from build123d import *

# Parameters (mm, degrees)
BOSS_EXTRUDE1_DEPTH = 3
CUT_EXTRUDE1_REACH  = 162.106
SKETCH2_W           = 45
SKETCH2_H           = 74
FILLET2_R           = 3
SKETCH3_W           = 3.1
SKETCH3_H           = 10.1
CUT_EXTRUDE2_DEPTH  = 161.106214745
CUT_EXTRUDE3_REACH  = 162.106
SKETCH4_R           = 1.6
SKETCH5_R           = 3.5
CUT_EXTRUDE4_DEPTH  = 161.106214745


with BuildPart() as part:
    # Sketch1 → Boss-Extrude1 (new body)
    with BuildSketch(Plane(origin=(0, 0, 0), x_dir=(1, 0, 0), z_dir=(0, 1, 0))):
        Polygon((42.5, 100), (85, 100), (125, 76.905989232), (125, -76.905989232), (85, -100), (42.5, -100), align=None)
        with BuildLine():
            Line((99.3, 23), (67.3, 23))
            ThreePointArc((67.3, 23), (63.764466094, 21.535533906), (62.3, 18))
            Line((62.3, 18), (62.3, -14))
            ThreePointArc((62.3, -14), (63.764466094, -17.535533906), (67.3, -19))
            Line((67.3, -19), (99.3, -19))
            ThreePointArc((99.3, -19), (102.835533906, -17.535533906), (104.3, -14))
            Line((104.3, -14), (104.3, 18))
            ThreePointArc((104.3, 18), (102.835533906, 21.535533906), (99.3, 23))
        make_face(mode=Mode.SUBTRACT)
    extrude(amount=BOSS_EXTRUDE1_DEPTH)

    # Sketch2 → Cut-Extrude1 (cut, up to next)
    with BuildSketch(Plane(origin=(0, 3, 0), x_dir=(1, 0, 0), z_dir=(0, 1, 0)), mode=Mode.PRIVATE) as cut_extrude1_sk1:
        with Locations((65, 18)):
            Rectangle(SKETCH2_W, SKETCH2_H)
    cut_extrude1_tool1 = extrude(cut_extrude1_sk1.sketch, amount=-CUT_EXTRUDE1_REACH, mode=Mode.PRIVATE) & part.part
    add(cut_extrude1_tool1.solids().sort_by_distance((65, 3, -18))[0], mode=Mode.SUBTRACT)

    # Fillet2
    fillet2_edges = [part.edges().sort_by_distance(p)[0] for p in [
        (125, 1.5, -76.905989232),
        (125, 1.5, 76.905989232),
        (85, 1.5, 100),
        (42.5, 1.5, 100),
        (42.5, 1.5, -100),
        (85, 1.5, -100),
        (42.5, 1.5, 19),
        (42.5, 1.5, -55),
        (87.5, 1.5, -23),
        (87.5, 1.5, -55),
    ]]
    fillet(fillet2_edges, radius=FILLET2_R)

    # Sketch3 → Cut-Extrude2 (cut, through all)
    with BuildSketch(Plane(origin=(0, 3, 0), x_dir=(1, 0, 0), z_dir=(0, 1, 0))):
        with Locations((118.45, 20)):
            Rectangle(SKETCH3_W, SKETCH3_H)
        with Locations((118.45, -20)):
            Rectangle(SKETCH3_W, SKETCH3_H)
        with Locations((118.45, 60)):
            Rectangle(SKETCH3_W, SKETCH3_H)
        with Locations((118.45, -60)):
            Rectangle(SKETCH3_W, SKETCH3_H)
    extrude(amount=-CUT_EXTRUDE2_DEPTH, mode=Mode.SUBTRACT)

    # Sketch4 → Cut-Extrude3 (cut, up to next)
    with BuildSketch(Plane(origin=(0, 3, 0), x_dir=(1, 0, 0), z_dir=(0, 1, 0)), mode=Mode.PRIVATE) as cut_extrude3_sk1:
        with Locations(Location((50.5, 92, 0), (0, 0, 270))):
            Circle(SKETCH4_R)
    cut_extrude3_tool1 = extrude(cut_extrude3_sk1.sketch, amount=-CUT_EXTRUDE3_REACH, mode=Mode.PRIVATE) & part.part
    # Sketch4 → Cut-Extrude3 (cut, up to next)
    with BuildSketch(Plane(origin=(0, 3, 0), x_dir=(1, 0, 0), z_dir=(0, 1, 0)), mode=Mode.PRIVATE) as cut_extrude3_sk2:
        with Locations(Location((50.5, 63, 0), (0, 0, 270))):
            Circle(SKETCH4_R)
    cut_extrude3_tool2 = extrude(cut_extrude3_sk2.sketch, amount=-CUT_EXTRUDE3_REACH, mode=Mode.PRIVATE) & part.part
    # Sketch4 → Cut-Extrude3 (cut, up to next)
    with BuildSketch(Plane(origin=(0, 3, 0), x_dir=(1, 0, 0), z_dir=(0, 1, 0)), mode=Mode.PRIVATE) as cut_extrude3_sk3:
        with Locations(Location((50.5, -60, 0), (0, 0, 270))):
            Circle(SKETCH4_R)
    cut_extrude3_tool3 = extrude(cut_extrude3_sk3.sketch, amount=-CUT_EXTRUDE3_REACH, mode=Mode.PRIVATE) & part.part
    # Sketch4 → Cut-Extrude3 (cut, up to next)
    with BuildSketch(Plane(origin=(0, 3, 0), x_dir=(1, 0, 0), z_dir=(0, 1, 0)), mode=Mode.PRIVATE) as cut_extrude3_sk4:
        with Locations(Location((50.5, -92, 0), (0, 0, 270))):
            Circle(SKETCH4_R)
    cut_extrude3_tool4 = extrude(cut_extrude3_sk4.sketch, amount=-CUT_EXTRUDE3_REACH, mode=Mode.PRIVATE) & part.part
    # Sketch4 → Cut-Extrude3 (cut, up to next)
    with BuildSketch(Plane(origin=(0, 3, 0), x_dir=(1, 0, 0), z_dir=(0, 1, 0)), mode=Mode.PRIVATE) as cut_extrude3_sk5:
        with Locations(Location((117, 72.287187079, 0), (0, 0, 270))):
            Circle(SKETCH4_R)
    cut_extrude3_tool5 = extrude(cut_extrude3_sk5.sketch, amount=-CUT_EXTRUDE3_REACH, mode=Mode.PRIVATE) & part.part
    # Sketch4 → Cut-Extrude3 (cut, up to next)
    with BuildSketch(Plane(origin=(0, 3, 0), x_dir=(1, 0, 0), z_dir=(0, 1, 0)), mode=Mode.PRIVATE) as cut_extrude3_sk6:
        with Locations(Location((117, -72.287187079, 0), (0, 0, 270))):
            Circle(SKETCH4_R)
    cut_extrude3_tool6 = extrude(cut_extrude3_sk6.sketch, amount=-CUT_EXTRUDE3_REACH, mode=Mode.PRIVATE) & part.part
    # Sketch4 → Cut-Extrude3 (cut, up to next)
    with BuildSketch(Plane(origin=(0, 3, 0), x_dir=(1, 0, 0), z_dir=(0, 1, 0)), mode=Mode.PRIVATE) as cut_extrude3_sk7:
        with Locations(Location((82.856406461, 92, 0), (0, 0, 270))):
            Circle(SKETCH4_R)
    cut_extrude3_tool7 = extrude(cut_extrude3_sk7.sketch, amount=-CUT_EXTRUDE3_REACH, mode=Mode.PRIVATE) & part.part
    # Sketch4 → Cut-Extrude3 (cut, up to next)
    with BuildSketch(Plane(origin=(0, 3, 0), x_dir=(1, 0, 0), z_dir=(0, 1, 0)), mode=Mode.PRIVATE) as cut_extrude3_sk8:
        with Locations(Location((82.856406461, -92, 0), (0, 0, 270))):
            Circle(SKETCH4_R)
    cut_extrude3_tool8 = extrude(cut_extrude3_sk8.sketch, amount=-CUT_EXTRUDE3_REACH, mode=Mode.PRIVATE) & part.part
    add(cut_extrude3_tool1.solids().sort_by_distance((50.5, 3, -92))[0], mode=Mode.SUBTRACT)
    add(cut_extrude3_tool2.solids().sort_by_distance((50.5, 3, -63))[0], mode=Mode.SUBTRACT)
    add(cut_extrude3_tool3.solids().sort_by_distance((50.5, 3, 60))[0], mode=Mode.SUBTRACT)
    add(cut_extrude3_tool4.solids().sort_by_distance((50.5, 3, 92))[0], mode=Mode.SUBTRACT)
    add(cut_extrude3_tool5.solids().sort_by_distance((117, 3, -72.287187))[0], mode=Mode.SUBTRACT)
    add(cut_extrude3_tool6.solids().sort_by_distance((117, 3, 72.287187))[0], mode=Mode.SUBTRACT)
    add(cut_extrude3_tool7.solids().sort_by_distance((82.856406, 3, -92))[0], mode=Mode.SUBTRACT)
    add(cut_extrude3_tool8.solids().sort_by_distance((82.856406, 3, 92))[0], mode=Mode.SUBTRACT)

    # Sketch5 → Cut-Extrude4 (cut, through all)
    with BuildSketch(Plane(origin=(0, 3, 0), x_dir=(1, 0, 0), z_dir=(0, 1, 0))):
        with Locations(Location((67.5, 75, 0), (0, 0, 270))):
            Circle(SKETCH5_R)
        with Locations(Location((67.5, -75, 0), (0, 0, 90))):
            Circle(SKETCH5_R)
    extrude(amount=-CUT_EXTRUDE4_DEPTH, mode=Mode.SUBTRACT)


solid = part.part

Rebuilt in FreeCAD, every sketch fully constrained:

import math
import FreeCAD as App
import Part
import Sketcher

V = App.Vector
Q = App.Units.Quantity


def edges_at(feature, points):
    """Names of the edges that pass closest to the given points."""
    edges = feature.Shape.Edges
    near = lambda p: min(range(len(edges)), key=lambda i: edges[i].distToShape(Part.Vertex(*p))[0])
    return sorted({f"Edge{near(p) + 1}" for p in points})

doc = App.newDocument("Part")
params = doc.addObject("Spreadsheet::Sheet", "Params")
for row, (alias, value) in enumerate([
    ("sketch1_radius", "5 mm"),
    ("sketch1_width", "32 mm"),
    ("sketch1_height", "200 mm"),
    ("sketch1_width2", "42.5 mm"),
    ("pad1_length", "3 mm"),
    ("sketch2_width", "45 mm"),
    ("sketch2_height", "74 mm"),
    ("pocket1_length", "3 mm"),
    ("fillet_radius", "3 mm"),
    ("sketch3_width", "3.1 mm"),
    ("sketch3_height", "10.1 mm"),
    ("sketch4_diameter", "3.2 mm"),
    ("sketch5_diameter", "3.2 mm"),
    ("sketch6_diameter", "3.2 mm"),
    ("sketch7_diameter", "3.2 mm"),
    ("sketch8_diameter", "3.2 mm"),
    ("sketch9_diameter", "3.2 mm"),
    ("sketch10_diameter", "3.2 mm"),
    ("sketch11_diameter", "3.2 mm"),
    ("sketch12_diameter", "7 mm"),
], start=1):
    params.set(f"A{row}", alias)
    params.set(f"B{row}", "=" + value)
    params.setAlias(f"B{row}", alias)

body = doc.addObject("PartDesign::Body", "Body")

# Sketch on XZ plane
sketch1 = body.newObject("Sketcher::SketchObject", "Sketch")
sketch1.AttachmentSupport = (doc.getObject("XZ_Plane"), [""])
sketch1.MapMode = "FlatFace"
sketch1.addGeometry([
    Part.LineSegment(V(85, -100, 0), V(42, -100, 0)),  # 0
    Part.LineSegment(V(42, -100, 0), V(42, 100, 0)),  # 1
    Part.LineSegment(V(42, 100, 0), V(85, 100, 0)),  # 2
    Part.LineSegment(V(85, 100, 0), V(125, 77, 0)),  # 3
    Part.LineSegment(V(125, 77, 0), V(125, -77, 0)),  # 4
    Part.LineSegment(V(125, -77, 0), V(85, -100, 0)),  # 5
    Part.ArcOfCircle(Part.Circle(V(99, -18, 0), V(0, 0, 1), 5), math.radians(-90), math.radians(0)),  # 6
    Part.LineSegment(V(104, -18, 0), V(104, 14, 0)),  # 7
    Part.ArcOfCircle(Part.Circle(V(99, 14, 0), V(0, 0, 1), 5), math.radians(0), math.radians(90)),  # 8
    Part.LineSegment(V(99, 19, 0), V(67, 19, 0)),  # 9
    Part.ArcOfCircle(Part.Circle(V(67, 14, 0), V(0, 0, 1), 5), math.radians(90), math.radians(180)),  # 10
    Part.LineSegment(V(62, 14, 0), V(62, -18, 0)),  # 11
    Part.ArcOfCircle(Part.Circle(V(67, -18, 0), V(0, 0, 1), 5), math.radians(180), math.radians(270)),  # 12
    Part.LineSegment(V(67, -23, 0), V(99, -23, 0)),  # 13
], False)
sketch1.addConstraint([
    Sketcher.Constraint("Coincident", 0, 2, 1, 1),
    Sketcher.Constraint("Coincident", 1, 2, 2, 1),
    Sketcher.Constraint("Coincident", 2, 2, 3, 1),
    Sketcher.Constraint("Coincident", 3, 2, 4, 1),
    Sketcher.Constraint("Coincident", 4, 2, 5, 1),
    Sketcher.Constraint("Coincident", 5, 2, 0, 1),
    Sketcher.Constraint("Tangent", 6, 2, 7, 1),
    Sketcher.Constraint("Tangent", 7, 2, 8, 1),
    Sketcher.Constraint("Tangent", 8, 2, 9, 1),
    Sketcher.Constraint("Tangent", 9, 2, 10, 1),
    Sketcher.Constraint("Tangent", 10, 2, 11, 1),
    Sketcher.Constraint("Tangent", 11, 2, 12, 1),
    Sketcher.Constraint("Tangent", 12, 2, 13, 1),
    Sketcher.Constraint("Tangent", 13, 2, 6, 1),
    Sketcher.Constraint("Horizontal", 0),
    Sketcher.Constraint("Vertical", 1),
    Sketcher.Constraint("Horizontal", 2),
    Sketcher.Constraint("Vertical", 4),
    Sketcher.Constraint("Vertical", 7),
    Sketcher.Constraint("Horizontal", 9),
    Sketcher.Constraint("Vertical", 11),
    Sketcher.Constraint("Horizontal", 13),
    Sketcher.Constraint("Equal", 6, 8),
    Sketcher.Constraint("Equal", 8, 10),
    Sketcher.Constraint("Equal", 10, 12),
    Sketcher.Constraint("Symmetric", 2, 2, 5, 2, -1),
    Sketcher.Constraint("Equal", 13, 7),
    Sketcher.Constraint("Equal", 3, 5),
    Sketcher.Constraint("Radius", 6, Q("5 mm")),
    Sketcher.Constraint("DistanceX", 9, 2, 9, 1, Q("32 mm")),
    Sketcher.Constraint("DistanceY", 1, 1, 1, 2, Q("200 mm")),
    Sketcher.Constraint("Angle", 3, Q("-30 deg")),
    Sketcher.Constraint("DistanceX", 0, 2, 0, 1, Q("42.5 mm")),
    Sketcher.Constraint("DistanceY", 6, 3, -1, 1, Q("18 mm")),
    Sketcher.Constraint("DistanceX", -1, 1, 2, 2, Q("85 mm")),
    Sketcher.Constraint("DistanceX", -1, 1, 3, 2, Q("125 mm")),
    Sketcher.Constraint("DistanceX", -1, 1, 6, 3, Q("99.3 mm")),
])
sketch1.setExpression("Constraints[28]", "Params.sketch1_radius")
sketch1.setExpression("Constraints[29]", "Params.sketch1_width")
sketch1.setExpression("Constraints[30]", "Params.sketch1_height")
sketch1.setExpression("Constraints[32]", "Params.sketch1_width2")
pad1 = body.newObject("PartDesign::Pad", "Pad")
pad1.Profile = sketch1
pad1.setExpression("Length", "Params.pad1_length")
pad1.Reversed = True

# Sketch on XZ plane
sketch2 = body.newObject("Sketcher::SketchObject", "Sketch001")
sketch2.AttachmentSupport = (doc.getObject("XZ_Plane"), [""])
sketch2.MapMode = "FlatFace"
sketch2.AttachmentOffset = App.Placement(V(0, 0, -3), App.Rotation())
sketch2.addGeometry([
    Part.LineSegment(V(42, -55, 0), V(42, 19, 0)),
    Part.LineSegment(V(42, 19, 0), V(88, 19, 0)),
    Part.LineSegment(V(88, 19, 0), V(88, -55, 0)),
    Part.LineSegment(V(88, -55, 0), V(42, -55, 0)),
], False)
sketch2.addConstraint([
    Sketcher.Constraint("Coincident", 0, 2, 1, 1),
    Sketcher.Constraint("Coincident", 1, 2, 2, 1),
    Sketcher.Constraint("Coincident", 2, 2, 3, 1),
    Sketcher.Constraint("Coincident", 3, 2, 0, 1),
    Sketcher.Constraint("Vertical", 0),
    Sketcher.Constraint("Horizontal", 1),
    Sketcher.Constraint("Vertical", 2),
    Sketcher.Constraint("Horizontal", 3),
    Sketcher.Constraint("DistanceX", 1, 1, 1, 2, Q("45 mm")),
    Sketcher.Constraint("DistanceY", 0, 1, 0, 2, Q("74 mm")),
    Sketcher.Constraint("DistanceY", -1, 1, 0, 2, Q("19 mm")),
    Sketcher.Constraint("DistanceX", -1, 1, 0, 2, Q("42.5 mm")),
])
sketch2.setExpression("Constraints[8]", "Params.sketch2_width")
sketch2.setExpression("Constraints[9]", "Params.sketch2_height")
pocket1 = body.newObject("PartDesign::Pocket", "Pocket")
pocket1.Profile = sketch2
pocket1.setExpression("Length", "Params.pocket1_length")
pocket1.Reversed = True
doc.recompute()

fillet = body.newObject("PartDesign::Fillet", "Fillet")
fillet.Base = (pocket1, edges_at(pocket1, [
    (125, 1.5, -76.906),
    (125, 1.5, 76.906),
    (85, 1.5, 100),
    (42.5, 1.5, 100),
    (42.5, 1.5, -100),
    (85, 1.5, -100),
    (42.5, 1.5, 19),
    (42.5, 1.5, -55),
    (87.5, 1.5, -23),
    (87.5, 1.5, -55),
]))
fillet.setExpression("Radius", "Params.fillet_radius")

# Sketch on XZ plane
sketch3 = body.newObject("Sketcher::SketchObject", "Sketch002")
sketch3.AttachmentSupport = (doc.getObject("XZ_Plane"), [""])
sketch3.MapMode = "FlatFace"
sketch3.AttachmentOffset = App.Placement(V(0, 0, -3), App.Rotation())
sketch3.addGeometry([
    Part.LineSegment(V(116.9, -25.1, 0), V(116.9, -14.9, 0)),  # 0
    Part.LineSegment(V(116.9, -14.9, 0), V(120, -14.9, 0)),  # 1
    Part.LineSegment(V(120, -14.9, 0), V(120, -25.1, 0)),  # 2
    Part.LineSegment(V(120, -25.1, 0), V(116.9, -25.1, 0)),  # 3
    Part.LineSegment(V(116.9, 14.9, 0), V(116.9, 25.1, 0)),  # 4
    Part.LineSegment(V(116.9, 25.1, 0), V(120, 25.1, 0)),  # 5
    Part.LineSegment(V(120, 25.1, 0), V(120, 14.9, 0)),  # 6
    Part.LineSegment(V(120, 14.9, 0), V(116.9, 14.9, 0)),  # 7
    Part.LineSegment(V(116.9, -65, 0), V(116.9, -55, 0)),  # 8
    Part.LineSegment(V(116.9, -55, 0), V(120, -55, 0)),  # 9
    Part.LineSegment(V(120, -55, 0), V(120, -65, 0)),  # 10
    Part.LineSegment(V(120, -65, 0), V(116.9, -65, 0)),  # 11
    Part.LineSegment(V(116.9, 55, 0), V(116.9, 65, 0)),  # 12
    Part.LineSegment(V(116.9, 65, 0), V(120, 65, 0)),  # 13
    Part.LineSegment(V(120, 65, 0), V(120, 55, 0)),  # 14
    Part.LineSegment(V(120, 55, 0), V(116.9, 55, 0)),  # 15
], False)
sketch3.addConstraint([
    Sketcher.Constraint("Coincident", 0, 2, 1, 1),
    Sketcher.Constraint("Coincident", 1, 2, 2, 1),
    Sketcher.Constraint("Coincident", 2, 2, 3, 1),
    Sketcher.Constraint("Coincident", 3, 2, 0, 1),
    Sketcher.Constraint("Coincident", 4, 2, 5, 1),
    Sketcher.Constraint("Coincident", 5, 2, 6, 1),
    Sketcher.Constraint("Coincident", 6, 2, 7, 1),
    Sketcher.Constraint("Coincident", 7, 2, 4, 1),
    Sketcher.Constraint("Coincident", 8, 2, 9, 1),
    Sketcher.Constraint("Coincident", 9, 2, 10, 1),
    Sketcher.Constraint("Coincident", 10, 2, 11, 1),
    Sketcher.Constraint("Coincident", 11, 2, 8, 1),
    Sketcher.Constraint("Coincident", 12, 2, 13, 1),
    Sketcher.Constraint("Coincident", 13, 2, 14, 1),
    Sketcher.Constraint("Coincident", 14, 2, 15, 1),
    Sketcher.Constraint("Coincident", 15, 2, 12, 1),
    Sketcher.Constraint("Vertical", 0),
    Sketcher.Constraint("Horizontal", 1),
    Sketcher.Constraint("Vertical", 2),
    Sketcher.Constraint("Horizontal", 3),
    Sketcher.Constraint("Vertical", 4),
    Sketcher.Constraint("Horizontal", 5),
    Sketcher.Constraint("Vertical", 6),
    Sketcher.Constraint("Horizontal", 7),
    Sketcher.Constraint("Vertical", 8),
    Sketcher.Constraint("Horizontal", 9),
    Sketcher.Constraint("Vertical", 10),
    Sketcher.Constraint("Horizontal", 11),
    Sketcher.Constraint("Vertical", 12),
    Sketcher.Constraint("Horizontal", 13),
    Sketcher.Constraint("Vertical", 14),
    Sketcher.Constraint("Horizontal", 15),
    Sketcher.Constraint("Symmetric", 3, 2, 4, 2, -1),
    Sketcher.Constraint("Symmetric", 1, 2, 6, 2, -1),
    Sketcher.Constraint("Symmetric", 11, 2, 12, 2, -1),
    Sketcher.Constraint("Symmetric", 9, 2, 14, 2, -1),
    Sketcher.Constraint("Vertical", 7, 2, 8, 2),
    Sketcher.Constraint("Vertical", 6, 2, 9, 2),
    Sketcher.Constraint("Equal", 6, 8),
    Sketcher.Constraint("DistanceX", 1, 1, 1, 2, Q("3.1 mm")),
    Sketcher.Constraint("DistanceY", 0, 1, 0, 2, Q("10.1 mm")),
    Sketcher.Constraint("DistanceX", -1, 1, 1, 2, Q("120 mm")),
    Sketcher.Constraint("DistanceY", 0, 2, 4, 2, Q("40 mm")),
    Sketcher.Constraint("DistanceY", 8, 2, 0, 2, Q("40 mm")),
])
sketch3.setExpression("Constraints[39]", "Params.sketch3_width")
sketch3.setExpression("Constraints[40]", "Params.sketch3_height")
pocket2 = body.newObject("PartDesign::Pocket", "Pocket001")
pocket2.Profile = sketch3
pocket2.Type = "ThroughAll"
pocket2.Reversed = True

# Sketch on XZ plane
sketch4 = body.newObject("Sketcher::SketchObject", "Sketch003")
sketch4.AttachmentSupport = (doc.getObject("XZ_Plane"), [""])
sketch4.MapMode = "FlatFace"
sketch4.AttachmentOffset = App.Placement(V(0, 0, -3), App.Rotation())
sketch4.addGeometry(Part.Circle(V(50.5, -92, 0), V(0, 0, 1), 1.6), False)
sketch4.addConstraint([
    Sketcher.Constraint("Diameter", 0, Q("3.2 mm")),
    Sketcher.Constraint("DistanceY", 0, 3, -1, 1, Q("92 mm")),
    Sketcher.Constraint("DistanceX", -1, 1, 0, 3, Q("50.5 mm")),
])
sketch4.setExpression("Constraints[0]", "Params.sketch4_diameter")
pocket3 = body.newObject("PartDesign::Pocket", "Pocket002")
pocket3.Profile = sketch4
pocket3.Type = "UpToFirst"
pocket3.Reversed = True

# Sketch on XZ plane
sketch5 = body.newObject("Sketcher::SketchObject", "Sketch004")
sketch5.AttachmentSupport = (doc.getObject("XZ_Plane"), [""])
sketch5.MapMode = "FlatFace"
sketch5.AttachmentOffset = App.Placement(V(0, 0, -3), App.Rotation())
sketch5.addGeometry(Part.Circle(V(50.5, -63, 0), V(0, 0, 1), 1.6), False)
sketch5.addConstraint([
    Sketcher.Constraint("Diameter", 0, Q("3.2 mm")),
    Sketcher.Constraint("DistanceY", 0, 3, -1, 1, Q("63 mm")),
    Sketcher.Constraint("DistanceX", -1, 1, 0, 3, Q("50.5 mm")),
])
sketch5.setExpression("Constraints[0]", "Params.sketch5_diameter")
pocket4 = body.newObject("PartDesign::Pocket", "Pocket003")
pocket4.Profile = sketch5
pocket4.Type = "UpToFirst"
pocket4.Reversed = True

# Sketch on XZ plane
sketch6 = body.newObject("Sketcher::SketchObject", "Sketch005")
sketch6.AttachmentSupport = (doc.getObject("XZ_Plane"), [""])
sketch6.MapMode = "FlatFace"
sketch6.AttachmentOffset = App.Placement(V(0, 0, -3), App.Rotation())
sketch6.addGeometry(Part.Circle(V(50.5, 60, 0), V(0, 0, 1), 1.6), False)
sketch6.addConstraint([
    Sketcher.Constraint("Diameter", 0, Q("3.2 mm")),
    Sketcher.Constraint("DistanceY", -1, 1, 0, 3, Q("60 mm")),
    Sketcher.Constraint("DistanceX", -1, 1, 0, 3, Q("50.5 mm")),
])
sketch6.setExpression("Constraints[0]", "Params.sketch6_diameter")
pocket5 = body.newObject("PartDesign::Pocket", "Pocket004")
pocket5.Profile = sketch6
pocket5.Type = "UpToFirst"
pocket5.Reversed = True

# Sketch on XZ plane
sketch7 = body.newObject("Sketcher::SketchObject", "Sketch006")
sketch7.AttachmentSupport = (doc.getObject("XZ_Plane"), [""])
sketch7.MapMode = "FlatFace"
sketch7.AttachmentOffset = App.Placement(V(0, 0, -3), App.Rotation())
sketch7.addGeometry(Part.Circle(V(50.5, 92, 0), V(0, 0, 1), 1.6), False)
sketch7.addConstraint([
    Sketcher.Constraint("Diameter", 0, Q("3.2 mm")),
    Sketcher.Constraint("DistanceY", -1, 1, 0, 3, Q("92 mm")),
    Sketcher.Constraint("DistanceX", -1, 1, 0, 3, Q("50.5 mm")),
])
sketch7.setExpression("Constraints[0]", "Params.sketch7_diameter")
pocket6 = body.newObject("PartDesign::Pocket", "Pocket005")
pocket6.Profile = sketch7
pocket6.Type = "UpToFirst"
pocket6.Reversed = True

# Sketch on XZ plane
sketch8 = body.newObject("Sketcher::SketchObject", "Sketch007")
sketch8.AttachmentSupport = (doc.getObject("XZ_Plane"), [""])
sketch8.MapMode = "FlatFace"
sketch8.AttachmentOffset = App.Placement(V(0, 0, -3), App.Rotation())
sketch8.addGeometry(Part.Circle(V(117, -72.3, 0), V(0, 0, 1), 1.6), False)
sketch8.addConstraint([
    Sketcher.Constraint("Diameter", 0, Q("3.2 mm")),
    Sketcher.Constraint("DistanceX", -1, 1, 0, 3, Q("117 mm")),
    Sketcher.Constraint("DistanceY", 0, 3, -1, 1, Q("72.287187 mm")),
])
sketch8.setExpression("Constraints[0]", "Params.sketch8_diameter")
pocket7 = body.newObject("PartDesign::Pocket", "Pocket006")
pocket7.Profile = sketch8
pocket7.Type = "UpToFirst"
pocket7.Reversed = True

# Sketch on XZ plane
sketch9 = body.newObject("Sketcher::SketchObject", "Sketch008")
sketch9.AttachmentSupport = (doc.getObject("XZ_Plane"), [""])
sketch9.MapMode = "FlatFace"
sketch9.AttachmentOffset = App.Placement(V(0, 0, -3), App.Rotation())
sketch9.addGeometry(Part.Circle(V(117, 72.3, 0), V(0, 0, 1), 1.6), False)
sketch9.addConstraint([
    Sketcher.Constraint("Diameter", 0, Q("3.2 mm")),
    Sketcher.Constraint("DistanceX", -1, 1, 0, 3, Q("117 mm")),
    Sketcher.Constraint("DistanceY", -1, 1, 0, 3, Q("72.287187 mm")),
])
sketch9.setExpression("Constraints[0]", "Params.sketch9_diameter")
pocket8 = body.newObject("PartDesign::Pocket", "Pocket007")
pocket8.Profile = sketch9
pocket8.Type = "UpToFirst"
pocket8.Reversed = True

# Sketch on XZ plane
sketch10 = body.newObject("Sketcher::SketchObject", "Sketch009")
sketch10.AttachmentSupport = (doc.getObject("XZ_Plane"), [""])
sketch10.MapMode = "FlatFace"
sketch10.AttachmentOffset = App.Placement(V(0, 0, -3), App.Rotation())
sketch10.addGeometry(Part.Circle(V(82.9, -92, 0), V(0, 0, 1), 1.6), False)
sketch10.addConstraint([
    Sketcher.Constraint("Diameter", 0, Q("3.2 mm")),
    Sketcher.Constraint("DistanceY", 0, 3, -1, 1, Q("92 mm")),
    Sketcher.Constraint("DistanceX", -1, 1, 0, 3, Q("82.856406 mm")),
])
sketch10.setExpression("Constraints[0]", "Params.sketch10_diameter")
pocket9 = body.newObject("PartDesign::Pocket", "Pocket008")
pocket9.Profile = sketch10
pocket9.Type = "UpToFirst"
pocket9.Reversed = True

# Sketch on XZ plane
sketch11 = body.newObject("Sketcher::SketchObject", "Sketch010")
sketch11.AttachmentSupport = (doc.getObject("XZ_Plane"), [""])
sketch11.MapMode = "FlatFace"
sketch11.AttachmentOffset = App.Placement(V(0, 0, -3), App.Rotation())
sketch11.addGeometry(Part.Circle(V(82.9, 92, 0), V(0, 0, 1), 1.6), False)
sketch11.addConstraint([
    Sketcher.Constraint("Diameter", 0, Q("3.2 mm")),
    Sketcher.Constraint("DistanceY", -1, 1, 0, 3, Q("92 mm")),
    Sketcher.Constraint("DistanceX", -1, 1, 0, 3, Q("82.856406 mm")),
])
sketch11.setExpression("Constraints[0]", "Params.sketch11_diameter")
pocket10 = body.newObject("PartDesign::Pocket", "Pocket009")
pocket10.Profile = sketch11
pocket10.Type = "UpToFirst"
pocket10.Reversed = True

# Sketch on XZ plane
sketch12 = body.newObject("Sketcher::SketchObject", "Sketch011")
sketch12.AttachmentSupport = (doc.getObject("XZ_Plane"), [""])
sketch12.MapMode = "FlatFace"
sketch12.AttachmentOffset = App.Placement(V(0, 0, -3), App.Rotation())
sketch12.addGeometry([
    Part.Circle(V(67.5, -75, 0), V(0, 0, 1), 3.5),
    Part.Circle(V(67.5, 75, 0), V(0, 0, 1), 3.5),
], False)
sketch12.addConstraint([
    Sketcher.Constraint("Equal", 0, 1),
    Sketcher.Constraint("Symmetric", 0, 3, 1, 3, -1),
    Sketcher.Constraint("Diameter", 0, Q("7 mm")),
    Sketcher.Constraint("DistanceY", 0, 3, -1, 1, Q("75 mm")),
    Sketcher.Constraint("DistanceX", -1, 1, 0, 3, Q("67.5 mm")),
])
sketch12.setExpression("Constraints[2]", "Params.sketch12_diameter")
pocket11 = body.newObject("PartDesign::Pocket", "Pocket010")
pocket11.Profile = sketch12
pocket11.Type = "ThroughAll"
pocket11.Reversed = True

doc.recompute()
